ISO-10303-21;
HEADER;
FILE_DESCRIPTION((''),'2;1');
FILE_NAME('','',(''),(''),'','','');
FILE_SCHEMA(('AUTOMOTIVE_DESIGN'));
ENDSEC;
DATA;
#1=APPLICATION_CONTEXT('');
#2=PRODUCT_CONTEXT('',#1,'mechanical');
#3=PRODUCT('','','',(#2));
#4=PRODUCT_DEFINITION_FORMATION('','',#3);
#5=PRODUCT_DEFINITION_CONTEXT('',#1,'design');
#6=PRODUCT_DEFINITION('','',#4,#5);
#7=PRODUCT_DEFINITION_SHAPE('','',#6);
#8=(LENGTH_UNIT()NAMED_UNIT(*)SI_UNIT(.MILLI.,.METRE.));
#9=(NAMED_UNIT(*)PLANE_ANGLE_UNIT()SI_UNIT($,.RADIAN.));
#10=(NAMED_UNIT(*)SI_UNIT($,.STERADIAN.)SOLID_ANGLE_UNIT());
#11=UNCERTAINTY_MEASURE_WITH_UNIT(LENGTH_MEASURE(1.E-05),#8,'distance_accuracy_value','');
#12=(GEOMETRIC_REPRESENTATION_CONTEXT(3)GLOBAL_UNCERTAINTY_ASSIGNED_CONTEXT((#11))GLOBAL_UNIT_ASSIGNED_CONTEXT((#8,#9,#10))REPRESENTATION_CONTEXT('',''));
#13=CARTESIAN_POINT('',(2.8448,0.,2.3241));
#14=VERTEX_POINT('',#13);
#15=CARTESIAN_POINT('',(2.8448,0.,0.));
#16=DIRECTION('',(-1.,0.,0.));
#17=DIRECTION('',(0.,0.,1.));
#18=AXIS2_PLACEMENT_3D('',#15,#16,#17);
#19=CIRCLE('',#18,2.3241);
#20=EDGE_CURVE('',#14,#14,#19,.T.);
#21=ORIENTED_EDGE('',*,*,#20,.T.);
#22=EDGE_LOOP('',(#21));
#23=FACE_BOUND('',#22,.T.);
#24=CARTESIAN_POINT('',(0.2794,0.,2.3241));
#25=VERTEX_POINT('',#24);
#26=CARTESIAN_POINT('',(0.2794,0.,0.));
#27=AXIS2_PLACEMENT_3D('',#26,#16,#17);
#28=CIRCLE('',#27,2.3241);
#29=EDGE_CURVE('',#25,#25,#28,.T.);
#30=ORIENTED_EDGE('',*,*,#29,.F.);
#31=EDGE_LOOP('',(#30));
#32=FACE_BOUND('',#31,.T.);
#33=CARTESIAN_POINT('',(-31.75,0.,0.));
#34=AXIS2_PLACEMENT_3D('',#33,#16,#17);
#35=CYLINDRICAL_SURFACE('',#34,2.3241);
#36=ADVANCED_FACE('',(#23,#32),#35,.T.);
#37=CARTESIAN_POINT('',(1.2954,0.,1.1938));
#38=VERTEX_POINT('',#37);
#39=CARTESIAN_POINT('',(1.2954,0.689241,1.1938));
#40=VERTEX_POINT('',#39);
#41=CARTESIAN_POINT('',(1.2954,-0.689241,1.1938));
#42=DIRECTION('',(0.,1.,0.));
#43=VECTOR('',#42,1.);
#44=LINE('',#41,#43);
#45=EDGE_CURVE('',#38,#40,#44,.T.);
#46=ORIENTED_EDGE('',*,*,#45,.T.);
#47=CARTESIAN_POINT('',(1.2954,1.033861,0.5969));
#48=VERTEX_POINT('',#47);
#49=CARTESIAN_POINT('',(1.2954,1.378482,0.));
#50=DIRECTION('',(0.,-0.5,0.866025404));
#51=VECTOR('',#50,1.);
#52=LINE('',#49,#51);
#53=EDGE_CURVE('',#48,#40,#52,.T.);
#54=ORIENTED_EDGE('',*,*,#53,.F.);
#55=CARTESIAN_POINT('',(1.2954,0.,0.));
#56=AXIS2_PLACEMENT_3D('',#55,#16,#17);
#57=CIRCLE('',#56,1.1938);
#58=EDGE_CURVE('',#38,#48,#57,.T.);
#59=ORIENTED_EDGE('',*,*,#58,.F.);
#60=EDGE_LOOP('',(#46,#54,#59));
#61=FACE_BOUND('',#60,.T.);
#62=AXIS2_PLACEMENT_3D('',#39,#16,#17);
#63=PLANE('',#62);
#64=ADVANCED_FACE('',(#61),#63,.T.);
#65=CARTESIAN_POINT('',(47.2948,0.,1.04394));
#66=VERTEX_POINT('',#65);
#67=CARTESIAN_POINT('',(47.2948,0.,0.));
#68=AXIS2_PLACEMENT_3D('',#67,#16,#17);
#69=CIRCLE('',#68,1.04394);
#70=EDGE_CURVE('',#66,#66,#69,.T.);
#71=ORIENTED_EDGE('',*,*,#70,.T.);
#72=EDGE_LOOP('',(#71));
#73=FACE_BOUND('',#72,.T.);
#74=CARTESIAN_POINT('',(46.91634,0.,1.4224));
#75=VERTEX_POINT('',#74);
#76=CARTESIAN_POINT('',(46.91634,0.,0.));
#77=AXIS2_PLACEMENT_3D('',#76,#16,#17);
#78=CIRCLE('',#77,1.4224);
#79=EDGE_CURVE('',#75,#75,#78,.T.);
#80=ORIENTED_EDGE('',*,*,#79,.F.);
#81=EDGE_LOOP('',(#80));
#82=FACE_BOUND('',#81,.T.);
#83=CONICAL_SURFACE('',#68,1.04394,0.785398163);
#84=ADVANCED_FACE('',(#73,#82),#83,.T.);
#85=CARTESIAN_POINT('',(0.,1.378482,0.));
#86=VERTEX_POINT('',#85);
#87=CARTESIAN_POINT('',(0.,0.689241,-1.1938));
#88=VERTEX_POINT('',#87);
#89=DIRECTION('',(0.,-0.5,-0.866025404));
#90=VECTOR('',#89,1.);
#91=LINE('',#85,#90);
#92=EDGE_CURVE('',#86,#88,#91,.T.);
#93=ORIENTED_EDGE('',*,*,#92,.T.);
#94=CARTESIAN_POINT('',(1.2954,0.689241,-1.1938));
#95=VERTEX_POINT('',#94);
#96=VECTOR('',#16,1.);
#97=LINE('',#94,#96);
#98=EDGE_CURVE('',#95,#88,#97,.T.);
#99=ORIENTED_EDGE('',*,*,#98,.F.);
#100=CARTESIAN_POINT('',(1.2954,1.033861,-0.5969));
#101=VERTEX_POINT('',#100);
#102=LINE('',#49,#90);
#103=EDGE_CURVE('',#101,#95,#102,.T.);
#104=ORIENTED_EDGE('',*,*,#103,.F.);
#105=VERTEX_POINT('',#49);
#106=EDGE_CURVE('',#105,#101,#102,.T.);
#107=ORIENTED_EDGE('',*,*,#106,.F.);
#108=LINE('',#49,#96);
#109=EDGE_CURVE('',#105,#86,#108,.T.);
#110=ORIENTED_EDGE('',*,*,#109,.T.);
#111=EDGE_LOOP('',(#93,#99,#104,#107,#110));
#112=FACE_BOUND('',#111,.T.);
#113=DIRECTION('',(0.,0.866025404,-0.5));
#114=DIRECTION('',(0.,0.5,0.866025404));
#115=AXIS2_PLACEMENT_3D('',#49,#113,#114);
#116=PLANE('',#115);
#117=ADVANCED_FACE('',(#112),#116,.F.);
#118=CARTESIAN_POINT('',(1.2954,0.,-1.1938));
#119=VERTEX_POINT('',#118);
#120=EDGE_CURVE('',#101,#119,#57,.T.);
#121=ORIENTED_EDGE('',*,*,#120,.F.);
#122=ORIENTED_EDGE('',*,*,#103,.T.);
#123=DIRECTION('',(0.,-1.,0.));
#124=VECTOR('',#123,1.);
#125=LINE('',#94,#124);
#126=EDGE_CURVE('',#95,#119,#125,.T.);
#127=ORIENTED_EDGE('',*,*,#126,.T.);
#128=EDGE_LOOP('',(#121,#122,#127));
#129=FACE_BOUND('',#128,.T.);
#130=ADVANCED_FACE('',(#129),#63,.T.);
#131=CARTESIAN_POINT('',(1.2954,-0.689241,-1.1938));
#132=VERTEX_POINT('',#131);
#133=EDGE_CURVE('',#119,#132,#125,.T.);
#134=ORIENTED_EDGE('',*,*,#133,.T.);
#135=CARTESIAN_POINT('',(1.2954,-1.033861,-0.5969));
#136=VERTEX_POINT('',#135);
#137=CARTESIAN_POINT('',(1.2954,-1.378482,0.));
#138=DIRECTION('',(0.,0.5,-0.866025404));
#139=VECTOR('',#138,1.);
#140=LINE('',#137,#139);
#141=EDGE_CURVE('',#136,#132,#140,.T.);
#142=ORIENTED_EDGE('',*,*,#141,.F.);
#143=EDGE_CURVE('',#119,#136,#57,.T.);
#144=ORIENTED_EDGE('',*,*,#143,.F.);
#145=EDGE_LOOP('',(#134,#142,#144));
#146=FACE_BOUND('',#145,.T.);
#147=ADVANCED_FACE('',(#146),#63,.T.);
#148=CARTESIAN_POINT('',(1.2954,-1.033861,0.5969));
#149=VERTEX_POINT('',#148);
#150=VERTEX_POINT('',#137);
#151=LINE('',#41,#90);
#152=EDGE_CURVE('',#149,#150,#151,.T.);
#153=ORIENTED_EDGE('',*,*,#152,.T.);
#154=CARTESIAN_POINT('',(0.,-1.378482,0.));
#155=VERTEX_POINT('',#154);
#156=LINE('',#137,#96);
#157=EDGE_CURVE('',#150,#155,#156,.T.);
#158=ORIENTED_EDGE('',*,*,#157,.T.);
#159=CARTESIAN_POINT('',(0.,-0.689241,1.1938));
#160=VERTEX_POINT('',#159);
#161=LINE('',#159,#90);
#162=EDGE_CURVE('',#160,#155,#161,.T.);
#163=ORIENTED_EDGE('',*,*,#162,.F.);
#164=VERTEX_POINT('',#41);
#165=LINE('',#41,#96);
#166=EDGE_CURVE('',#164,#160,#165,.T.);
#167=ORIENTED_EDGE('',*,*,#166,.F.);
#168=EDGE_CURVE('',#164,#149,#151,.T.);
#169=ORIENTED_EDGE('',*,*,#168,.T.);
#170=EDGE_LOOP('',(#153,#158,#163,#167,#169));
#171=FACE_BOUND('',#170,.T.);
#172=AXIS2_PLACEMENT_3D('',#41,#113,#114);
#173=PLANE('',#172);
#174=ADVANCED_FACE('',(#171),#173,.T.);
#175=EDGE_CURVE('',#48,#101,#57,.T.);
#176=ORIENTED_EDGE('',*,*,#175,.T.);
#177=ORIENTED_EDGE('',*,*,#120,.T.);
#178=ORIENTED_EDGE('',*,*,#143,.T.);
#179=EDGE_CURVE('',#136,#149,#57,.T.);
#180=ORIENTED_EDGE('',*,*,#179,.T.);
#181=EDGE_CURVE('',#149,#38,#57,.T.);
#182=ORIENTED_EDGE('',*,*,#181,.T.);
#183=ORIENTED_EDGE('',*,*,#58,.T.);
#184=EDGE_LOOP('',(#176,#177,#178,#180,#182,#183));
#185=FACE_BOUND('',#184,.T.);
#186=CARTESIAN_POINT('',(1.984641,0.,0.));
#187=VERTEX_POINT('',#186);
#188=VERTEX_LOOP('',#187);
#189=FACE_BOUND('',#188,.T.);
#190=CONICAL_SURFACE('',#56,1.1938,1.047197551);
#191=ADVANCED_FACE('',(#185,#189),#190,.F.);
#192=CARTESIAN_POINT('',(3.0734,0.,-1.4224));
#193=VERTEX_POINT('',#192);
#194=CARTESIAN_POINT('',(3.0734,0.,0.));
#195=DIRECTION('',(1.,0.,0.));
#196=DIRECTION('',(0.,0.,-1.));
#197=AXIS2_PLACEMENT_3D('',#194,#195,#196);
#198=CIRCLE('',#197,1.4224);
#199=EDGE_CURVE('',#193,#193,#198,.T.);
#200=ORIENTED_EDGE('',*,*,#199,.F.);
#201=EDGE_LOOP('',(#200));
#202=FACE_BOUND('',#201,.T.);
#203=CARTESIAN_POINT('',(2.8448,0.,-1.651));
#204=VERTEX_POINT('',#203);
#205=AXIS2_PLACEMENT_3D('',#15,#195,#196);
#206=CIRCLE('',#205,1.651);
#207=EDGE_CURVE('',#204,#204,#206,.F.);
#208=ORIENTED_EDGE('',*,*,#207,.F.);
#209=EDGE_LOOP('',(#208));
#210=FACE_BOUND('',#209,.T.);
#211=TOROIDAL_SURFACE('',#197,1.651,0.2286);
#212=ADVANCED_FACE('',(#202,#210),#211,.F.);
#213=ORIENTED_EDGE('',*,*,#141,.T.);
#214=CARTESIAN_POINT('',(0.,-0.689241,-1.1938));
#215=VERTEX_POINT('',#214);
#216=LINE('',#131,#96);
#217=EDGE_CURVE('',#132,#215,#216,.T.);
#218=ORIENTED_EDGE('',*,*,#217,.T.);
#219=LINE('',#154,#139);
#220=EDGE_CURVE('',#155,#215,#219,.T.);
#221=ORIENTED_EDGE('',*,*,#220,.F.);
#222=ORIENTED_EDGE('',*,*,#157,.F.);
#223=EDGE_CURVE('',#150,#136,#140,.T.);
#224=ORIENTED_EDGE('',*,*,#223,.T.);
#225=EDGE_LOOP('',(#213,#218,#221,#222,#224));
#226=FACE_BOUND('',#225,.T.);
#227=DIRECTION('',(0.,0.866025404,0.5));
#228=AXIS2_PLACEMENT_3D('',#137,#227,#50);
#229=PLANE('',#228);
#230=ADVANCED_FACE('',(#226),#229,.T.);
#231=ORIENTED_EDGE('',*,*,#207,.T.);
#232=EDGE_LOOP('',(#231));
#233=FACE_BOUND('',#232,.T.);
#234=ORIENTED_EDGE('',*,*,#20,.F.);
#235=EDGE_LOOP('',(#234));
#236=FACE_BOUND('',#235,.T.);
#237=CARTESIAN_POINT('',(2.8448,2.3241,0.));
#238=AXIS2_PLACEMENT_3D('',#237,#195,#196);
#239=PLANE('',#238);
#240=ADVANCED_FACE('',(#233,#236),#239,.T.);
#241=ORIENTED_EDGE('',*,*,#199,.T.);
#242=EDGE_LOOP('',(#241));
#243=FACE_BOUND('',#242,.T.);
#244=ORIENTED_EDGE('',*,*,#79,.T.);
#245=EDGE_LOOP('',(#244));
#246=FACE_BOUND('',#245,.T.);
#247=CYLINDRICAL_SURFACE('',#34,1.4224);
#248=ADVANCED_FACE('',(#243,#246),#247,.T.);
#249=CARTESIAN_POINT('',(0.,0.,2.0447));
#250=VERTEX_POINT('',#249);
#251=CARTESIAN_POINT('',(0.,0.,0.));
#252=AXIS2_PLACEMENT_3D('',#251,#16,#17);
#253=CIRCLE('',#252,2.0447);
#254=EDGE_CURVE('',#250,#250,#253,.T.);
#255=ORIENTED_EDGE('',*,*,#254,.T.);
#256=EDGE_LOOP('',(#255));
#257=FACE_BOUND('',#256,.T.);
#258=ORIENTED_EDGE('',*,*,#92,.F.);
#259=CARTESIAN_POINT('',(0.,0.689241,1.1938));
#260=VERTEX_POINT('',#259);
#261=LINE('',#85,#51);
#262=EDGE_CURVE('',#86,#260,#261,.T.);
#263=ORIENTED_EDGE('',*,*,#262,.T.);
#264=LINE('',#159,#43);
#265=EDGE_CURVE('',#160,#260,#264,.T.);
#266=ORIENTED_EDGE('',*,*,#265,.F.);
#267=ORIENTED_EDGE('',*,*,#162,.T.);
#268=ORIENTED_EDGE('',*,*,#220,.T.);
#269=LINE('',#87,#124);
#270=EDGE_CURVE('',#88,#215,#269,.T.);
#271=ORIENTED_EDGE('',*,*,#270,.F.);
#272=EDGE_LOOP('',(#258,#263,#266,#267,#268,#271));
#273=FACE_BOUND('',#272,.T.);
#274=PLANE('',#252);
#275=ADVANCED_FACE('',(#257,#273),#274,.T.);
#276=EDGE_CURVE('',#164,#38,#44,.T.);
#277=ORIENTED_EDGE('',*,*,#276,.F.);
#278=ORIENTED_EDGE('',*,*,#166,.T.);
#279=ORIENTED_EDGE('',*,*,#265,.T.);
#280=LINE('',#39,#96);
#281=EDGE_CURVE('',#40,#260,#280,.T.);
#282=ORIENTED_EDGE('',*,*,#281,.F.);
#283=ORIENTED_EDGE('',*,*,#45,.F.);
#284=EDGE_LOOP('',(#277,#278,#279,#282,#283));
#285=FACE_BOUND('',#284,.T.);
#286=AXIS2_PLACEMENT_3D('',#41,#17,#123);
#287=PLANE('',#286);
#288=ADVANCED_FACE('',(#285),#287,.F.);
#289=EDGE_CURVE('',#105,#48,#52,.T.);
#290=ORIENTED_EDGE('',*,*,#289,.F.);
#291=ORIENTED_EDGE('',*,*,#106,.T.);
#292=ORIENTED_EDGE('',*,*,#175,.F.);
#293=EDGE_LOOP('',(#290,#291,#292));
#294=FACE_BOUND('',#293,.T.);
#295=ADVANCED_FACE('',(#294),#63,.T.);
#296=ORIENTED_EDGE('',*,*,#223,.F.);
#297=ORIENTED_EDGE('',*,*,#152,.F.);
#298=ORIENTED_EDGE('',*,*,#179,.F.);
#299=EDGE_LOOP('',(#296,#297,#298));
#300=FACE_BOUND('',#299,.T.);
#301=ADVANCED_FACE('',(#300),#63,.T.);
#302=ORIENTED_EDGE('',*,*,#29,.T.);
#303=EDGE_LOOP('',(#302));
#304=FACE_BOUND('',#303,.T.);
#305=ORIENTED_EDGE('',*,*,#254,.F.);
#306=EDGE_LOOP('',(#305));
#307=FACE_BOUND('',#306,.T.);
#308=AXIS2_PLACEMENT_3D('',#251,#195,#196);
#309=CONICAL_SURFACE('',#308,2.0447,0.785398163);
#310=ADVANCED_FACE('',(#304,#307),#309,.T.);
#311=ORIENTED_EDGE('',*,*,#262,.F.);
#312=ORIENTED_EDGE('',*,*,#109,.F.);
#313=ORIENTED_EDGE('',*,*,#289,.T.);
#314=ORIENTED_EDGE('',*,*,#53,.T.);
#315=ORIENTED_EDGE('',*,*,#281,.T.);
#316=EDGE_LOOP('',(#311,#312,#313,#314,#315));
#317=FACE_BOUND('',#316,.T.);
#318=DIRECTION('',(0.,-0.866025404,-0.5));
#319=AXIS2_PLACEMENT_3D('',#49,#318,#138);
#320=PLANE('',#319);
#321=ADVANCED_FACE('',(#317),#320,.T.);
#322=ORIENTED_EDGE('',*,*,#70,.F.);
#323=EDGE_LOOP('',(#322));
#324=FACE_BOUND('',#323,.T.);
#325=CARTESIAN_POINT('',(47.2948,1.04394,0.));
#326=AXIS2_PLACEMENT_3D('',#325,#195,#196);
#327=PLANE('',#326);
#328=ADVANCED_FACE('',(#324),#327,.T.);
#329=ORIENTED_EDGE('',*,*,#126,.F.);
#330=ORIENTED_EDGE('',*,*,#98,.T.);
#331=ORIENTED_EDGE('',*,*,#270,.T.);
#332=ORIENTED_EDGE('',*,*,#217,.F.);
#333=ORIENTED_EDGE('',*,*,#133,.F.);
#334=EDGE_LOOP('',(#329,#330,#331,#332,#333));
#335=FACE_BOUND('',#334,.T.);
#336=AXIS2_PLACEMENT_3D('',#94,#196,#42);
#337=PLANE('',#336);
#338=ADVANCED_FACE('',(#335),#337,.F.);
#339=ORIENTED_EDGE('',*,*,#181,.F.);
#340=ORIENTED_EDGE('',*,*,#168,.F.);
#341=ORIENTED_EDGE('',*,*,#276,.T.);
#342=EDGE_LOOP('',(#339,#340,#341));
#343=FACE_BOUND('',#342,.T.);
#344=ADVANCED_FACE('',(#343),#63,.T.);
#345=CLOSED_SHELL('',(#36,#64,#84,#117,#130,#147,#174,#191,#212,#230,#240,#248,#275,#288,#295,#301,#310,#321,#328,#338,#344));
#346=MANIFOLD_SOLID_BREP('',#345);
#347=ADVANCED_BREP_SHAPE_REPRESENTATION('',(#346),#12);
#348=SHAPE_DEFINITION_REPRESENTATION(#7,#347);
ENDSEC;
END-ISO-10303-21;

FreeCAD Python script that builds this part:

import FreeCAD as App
import Part
import Sketcher
Q = App.Units.Quantity


def edges_at(feature, points):
    """Names of the edges that pass closest to the given points."""
    edges = feature.Shape.Edges
    near = lambda p: min(range(len(edges)), key=lambda i: edges[i].distToShape(Part.Vertex(*p))[0])
    return sorted({f"Edge{near(p) + 1}" for p in points})


def add_polygon(sketch, points):
    """Adds a closed chain of lines whose ends are joined by coincident constraints."""
    first, n = sketch.GeometryCount, len(points)
    for a, b in zip(points, points[1:] + points[:1]):
        sketch.addGeometry(Part.LineSegment(App.Vector(*a, 0), App.Vector(*b, 0)), False)
    for i in range(n):
        sketch.addConstraint(Sketcher.Constraint("Coincident", first + i, 2, first + (i + 1) % n, 1))

doc = App.newDocument("Part")
body = doc.addObject("PartDesign::Body", "Body")

# Sketch on XY plane
sketch1 = body.newObject("Sketcher::SketchObject", "Sketch")
sketch1.AttachmentSupport = (doc.getObject("XY_Plane"), [""])
sketch1.MapMode = "FlatFace"
add_polygon(sketch1, [(0, 2.04), (0, 0), (47.29, 0), (47.29, 1.04), (46.92, 1.42), (2.84, 1.42), (2.84, 2.32), (0.28, 2.32)])  # lines 0-7
sketch1.addConstraint([
    Sketcher.Constraint("Vertical", 0),
    Sketcher.Constraint("Horizontal", 1),
    Sketcher.Constraint("Vertical", 2),
    Sketcher.Constraint("Horizontal", 4),
    Sketcher.Constraint("Vertical", 5),
    Sketcher.Constraint("Horizontal", 6),
    Sketcher.Constraint("Coincident", 0, 2, -1, 1),
    Sketcher.Constraint("Perpendicular", 3, 7),
    Sketcher.Constraint("Angle", 3, Q("135 deg")),
    Sketcher.Constraint("DistanceX", 1, 1, 1, 2, Q("1.862 in")),
    Sketcher.Constraint("DistanceX", 6, 2, 6, 1, Q("0.101 in")),
    Sketcher.Constraint("DistanceX", 4, 2, 2, 2, Q("1.75 in")),
    Sketcher.Constraint("DistanceX", 4, 2, 4, 1, Q("1.7351 in")),
    Sketcher.Constraint("DistanceY", 0, 2, 0, 1, Q("0.0805 in")),
    Sketcher.Constraint("DistanceY", 2, 1, 2, 2, Q("0.0411 in")),
])
revolution = body.newObject("PartDesign::Revolution", "Revolution")
revolution.Profile = sketch1
revolution.ReferenceAxis = (sketch1, ["H_Axis"])
revolution.Angle = 360
doc.recompute()

fillet = body.newObject("PartDesign::Fillet", "Fillet")
fillet.Base = (revolution, edges_at(revolution, [(2.845, -1.422, 0)]))
fillet.Radius = Q("0.009 in")

# Sketch on XY plane
sketch2 = body.newObject("Sketcher::SketchObject", "Sketch001")
sketch2.AttachmentSupport = (doc.getObject("XY_Plane"), [""])
sketch2.MapMode = "FlatFace"
add_polygon(sketch2, [(1.3, 1.2), (0, 1.2), (0, 0), (2, 0)])  # lines 0-3
sketch2.addConstraint([
    Sketcher.Constraint("Horizontal", 0),
    Sketcher.Constraint("Vertical", 1),
    Sketcher.Constraint("Horizontal", 2),
    Sketcher.Constraint("Coincident", 1, 2, -1, 1),
    Sketcher.Constraint("Angle", 3, Q("120 deg")),
    Sketcher.Constraint("DistanceX", 0, 2, 0, 1, Q("0.051 in")),
    Sketcher.Constraint("DistanceY", 1, 2, 1, 1, Q("0.047 in")),
])
groove = body.newObject("PartDesign::Groove", "Groove")
groove.Profile = sketch2
groove.ReferenceAxis = (sketch2, ["H_Axis"])
groove.Angle = 360

# Sketch on YZ plane
sketch3 = body.newObject("Sketcher::SketchObject", "Sketch002")
sketch3.AttachmentSupport = (doc.getObject("YZ_Plane"), [""])
sketch3.MapMode = "FlatFace"
add_polygon(sketch3, [(1.4, 0), (0.7, -1.2), (-0.7, -1.2), (-1.4, 0), (-0.7, 1.2), (0.7, 1.2)])  # lines 0-5
sketch3.addConstraint([
    Sketcher.Constraint("Horizontal", 1),
    Sketcher.Constraint("Horizontal", 4),
    Sketcher.Constraint("Symmetric", 0, 2, 3, 2, -1, 1),
    Sketcher.Constraint("Symmetric", 2, 2, 5, 2, -1, 1),
    Sketcher.Constraint("PointOnObject", 2, 2, -1),
    Sketcher.Constraint("Parallel", 2, 5),
    Sketcher.Constraint("Vertical", 1, 2, 3, 2),
    Sketcher.Constraint("Angle", 0, Q("-120 deg")),
    Sketcher.Constraint("DistanceY", 0, 2, -1, 1, Q("0.047 in")),
    Sketcher.Constraint("DistanceX", 1, 2, 1, 1, Q("1.378482 mm")),
])
pocket1 = body.newObject("PartDesign::Pocket", "Pocket")
pocket1.Profile = sketch3
pocket1.Length = Q("0.051 in")
pocket1.Reversed = True

doc.recompute()
